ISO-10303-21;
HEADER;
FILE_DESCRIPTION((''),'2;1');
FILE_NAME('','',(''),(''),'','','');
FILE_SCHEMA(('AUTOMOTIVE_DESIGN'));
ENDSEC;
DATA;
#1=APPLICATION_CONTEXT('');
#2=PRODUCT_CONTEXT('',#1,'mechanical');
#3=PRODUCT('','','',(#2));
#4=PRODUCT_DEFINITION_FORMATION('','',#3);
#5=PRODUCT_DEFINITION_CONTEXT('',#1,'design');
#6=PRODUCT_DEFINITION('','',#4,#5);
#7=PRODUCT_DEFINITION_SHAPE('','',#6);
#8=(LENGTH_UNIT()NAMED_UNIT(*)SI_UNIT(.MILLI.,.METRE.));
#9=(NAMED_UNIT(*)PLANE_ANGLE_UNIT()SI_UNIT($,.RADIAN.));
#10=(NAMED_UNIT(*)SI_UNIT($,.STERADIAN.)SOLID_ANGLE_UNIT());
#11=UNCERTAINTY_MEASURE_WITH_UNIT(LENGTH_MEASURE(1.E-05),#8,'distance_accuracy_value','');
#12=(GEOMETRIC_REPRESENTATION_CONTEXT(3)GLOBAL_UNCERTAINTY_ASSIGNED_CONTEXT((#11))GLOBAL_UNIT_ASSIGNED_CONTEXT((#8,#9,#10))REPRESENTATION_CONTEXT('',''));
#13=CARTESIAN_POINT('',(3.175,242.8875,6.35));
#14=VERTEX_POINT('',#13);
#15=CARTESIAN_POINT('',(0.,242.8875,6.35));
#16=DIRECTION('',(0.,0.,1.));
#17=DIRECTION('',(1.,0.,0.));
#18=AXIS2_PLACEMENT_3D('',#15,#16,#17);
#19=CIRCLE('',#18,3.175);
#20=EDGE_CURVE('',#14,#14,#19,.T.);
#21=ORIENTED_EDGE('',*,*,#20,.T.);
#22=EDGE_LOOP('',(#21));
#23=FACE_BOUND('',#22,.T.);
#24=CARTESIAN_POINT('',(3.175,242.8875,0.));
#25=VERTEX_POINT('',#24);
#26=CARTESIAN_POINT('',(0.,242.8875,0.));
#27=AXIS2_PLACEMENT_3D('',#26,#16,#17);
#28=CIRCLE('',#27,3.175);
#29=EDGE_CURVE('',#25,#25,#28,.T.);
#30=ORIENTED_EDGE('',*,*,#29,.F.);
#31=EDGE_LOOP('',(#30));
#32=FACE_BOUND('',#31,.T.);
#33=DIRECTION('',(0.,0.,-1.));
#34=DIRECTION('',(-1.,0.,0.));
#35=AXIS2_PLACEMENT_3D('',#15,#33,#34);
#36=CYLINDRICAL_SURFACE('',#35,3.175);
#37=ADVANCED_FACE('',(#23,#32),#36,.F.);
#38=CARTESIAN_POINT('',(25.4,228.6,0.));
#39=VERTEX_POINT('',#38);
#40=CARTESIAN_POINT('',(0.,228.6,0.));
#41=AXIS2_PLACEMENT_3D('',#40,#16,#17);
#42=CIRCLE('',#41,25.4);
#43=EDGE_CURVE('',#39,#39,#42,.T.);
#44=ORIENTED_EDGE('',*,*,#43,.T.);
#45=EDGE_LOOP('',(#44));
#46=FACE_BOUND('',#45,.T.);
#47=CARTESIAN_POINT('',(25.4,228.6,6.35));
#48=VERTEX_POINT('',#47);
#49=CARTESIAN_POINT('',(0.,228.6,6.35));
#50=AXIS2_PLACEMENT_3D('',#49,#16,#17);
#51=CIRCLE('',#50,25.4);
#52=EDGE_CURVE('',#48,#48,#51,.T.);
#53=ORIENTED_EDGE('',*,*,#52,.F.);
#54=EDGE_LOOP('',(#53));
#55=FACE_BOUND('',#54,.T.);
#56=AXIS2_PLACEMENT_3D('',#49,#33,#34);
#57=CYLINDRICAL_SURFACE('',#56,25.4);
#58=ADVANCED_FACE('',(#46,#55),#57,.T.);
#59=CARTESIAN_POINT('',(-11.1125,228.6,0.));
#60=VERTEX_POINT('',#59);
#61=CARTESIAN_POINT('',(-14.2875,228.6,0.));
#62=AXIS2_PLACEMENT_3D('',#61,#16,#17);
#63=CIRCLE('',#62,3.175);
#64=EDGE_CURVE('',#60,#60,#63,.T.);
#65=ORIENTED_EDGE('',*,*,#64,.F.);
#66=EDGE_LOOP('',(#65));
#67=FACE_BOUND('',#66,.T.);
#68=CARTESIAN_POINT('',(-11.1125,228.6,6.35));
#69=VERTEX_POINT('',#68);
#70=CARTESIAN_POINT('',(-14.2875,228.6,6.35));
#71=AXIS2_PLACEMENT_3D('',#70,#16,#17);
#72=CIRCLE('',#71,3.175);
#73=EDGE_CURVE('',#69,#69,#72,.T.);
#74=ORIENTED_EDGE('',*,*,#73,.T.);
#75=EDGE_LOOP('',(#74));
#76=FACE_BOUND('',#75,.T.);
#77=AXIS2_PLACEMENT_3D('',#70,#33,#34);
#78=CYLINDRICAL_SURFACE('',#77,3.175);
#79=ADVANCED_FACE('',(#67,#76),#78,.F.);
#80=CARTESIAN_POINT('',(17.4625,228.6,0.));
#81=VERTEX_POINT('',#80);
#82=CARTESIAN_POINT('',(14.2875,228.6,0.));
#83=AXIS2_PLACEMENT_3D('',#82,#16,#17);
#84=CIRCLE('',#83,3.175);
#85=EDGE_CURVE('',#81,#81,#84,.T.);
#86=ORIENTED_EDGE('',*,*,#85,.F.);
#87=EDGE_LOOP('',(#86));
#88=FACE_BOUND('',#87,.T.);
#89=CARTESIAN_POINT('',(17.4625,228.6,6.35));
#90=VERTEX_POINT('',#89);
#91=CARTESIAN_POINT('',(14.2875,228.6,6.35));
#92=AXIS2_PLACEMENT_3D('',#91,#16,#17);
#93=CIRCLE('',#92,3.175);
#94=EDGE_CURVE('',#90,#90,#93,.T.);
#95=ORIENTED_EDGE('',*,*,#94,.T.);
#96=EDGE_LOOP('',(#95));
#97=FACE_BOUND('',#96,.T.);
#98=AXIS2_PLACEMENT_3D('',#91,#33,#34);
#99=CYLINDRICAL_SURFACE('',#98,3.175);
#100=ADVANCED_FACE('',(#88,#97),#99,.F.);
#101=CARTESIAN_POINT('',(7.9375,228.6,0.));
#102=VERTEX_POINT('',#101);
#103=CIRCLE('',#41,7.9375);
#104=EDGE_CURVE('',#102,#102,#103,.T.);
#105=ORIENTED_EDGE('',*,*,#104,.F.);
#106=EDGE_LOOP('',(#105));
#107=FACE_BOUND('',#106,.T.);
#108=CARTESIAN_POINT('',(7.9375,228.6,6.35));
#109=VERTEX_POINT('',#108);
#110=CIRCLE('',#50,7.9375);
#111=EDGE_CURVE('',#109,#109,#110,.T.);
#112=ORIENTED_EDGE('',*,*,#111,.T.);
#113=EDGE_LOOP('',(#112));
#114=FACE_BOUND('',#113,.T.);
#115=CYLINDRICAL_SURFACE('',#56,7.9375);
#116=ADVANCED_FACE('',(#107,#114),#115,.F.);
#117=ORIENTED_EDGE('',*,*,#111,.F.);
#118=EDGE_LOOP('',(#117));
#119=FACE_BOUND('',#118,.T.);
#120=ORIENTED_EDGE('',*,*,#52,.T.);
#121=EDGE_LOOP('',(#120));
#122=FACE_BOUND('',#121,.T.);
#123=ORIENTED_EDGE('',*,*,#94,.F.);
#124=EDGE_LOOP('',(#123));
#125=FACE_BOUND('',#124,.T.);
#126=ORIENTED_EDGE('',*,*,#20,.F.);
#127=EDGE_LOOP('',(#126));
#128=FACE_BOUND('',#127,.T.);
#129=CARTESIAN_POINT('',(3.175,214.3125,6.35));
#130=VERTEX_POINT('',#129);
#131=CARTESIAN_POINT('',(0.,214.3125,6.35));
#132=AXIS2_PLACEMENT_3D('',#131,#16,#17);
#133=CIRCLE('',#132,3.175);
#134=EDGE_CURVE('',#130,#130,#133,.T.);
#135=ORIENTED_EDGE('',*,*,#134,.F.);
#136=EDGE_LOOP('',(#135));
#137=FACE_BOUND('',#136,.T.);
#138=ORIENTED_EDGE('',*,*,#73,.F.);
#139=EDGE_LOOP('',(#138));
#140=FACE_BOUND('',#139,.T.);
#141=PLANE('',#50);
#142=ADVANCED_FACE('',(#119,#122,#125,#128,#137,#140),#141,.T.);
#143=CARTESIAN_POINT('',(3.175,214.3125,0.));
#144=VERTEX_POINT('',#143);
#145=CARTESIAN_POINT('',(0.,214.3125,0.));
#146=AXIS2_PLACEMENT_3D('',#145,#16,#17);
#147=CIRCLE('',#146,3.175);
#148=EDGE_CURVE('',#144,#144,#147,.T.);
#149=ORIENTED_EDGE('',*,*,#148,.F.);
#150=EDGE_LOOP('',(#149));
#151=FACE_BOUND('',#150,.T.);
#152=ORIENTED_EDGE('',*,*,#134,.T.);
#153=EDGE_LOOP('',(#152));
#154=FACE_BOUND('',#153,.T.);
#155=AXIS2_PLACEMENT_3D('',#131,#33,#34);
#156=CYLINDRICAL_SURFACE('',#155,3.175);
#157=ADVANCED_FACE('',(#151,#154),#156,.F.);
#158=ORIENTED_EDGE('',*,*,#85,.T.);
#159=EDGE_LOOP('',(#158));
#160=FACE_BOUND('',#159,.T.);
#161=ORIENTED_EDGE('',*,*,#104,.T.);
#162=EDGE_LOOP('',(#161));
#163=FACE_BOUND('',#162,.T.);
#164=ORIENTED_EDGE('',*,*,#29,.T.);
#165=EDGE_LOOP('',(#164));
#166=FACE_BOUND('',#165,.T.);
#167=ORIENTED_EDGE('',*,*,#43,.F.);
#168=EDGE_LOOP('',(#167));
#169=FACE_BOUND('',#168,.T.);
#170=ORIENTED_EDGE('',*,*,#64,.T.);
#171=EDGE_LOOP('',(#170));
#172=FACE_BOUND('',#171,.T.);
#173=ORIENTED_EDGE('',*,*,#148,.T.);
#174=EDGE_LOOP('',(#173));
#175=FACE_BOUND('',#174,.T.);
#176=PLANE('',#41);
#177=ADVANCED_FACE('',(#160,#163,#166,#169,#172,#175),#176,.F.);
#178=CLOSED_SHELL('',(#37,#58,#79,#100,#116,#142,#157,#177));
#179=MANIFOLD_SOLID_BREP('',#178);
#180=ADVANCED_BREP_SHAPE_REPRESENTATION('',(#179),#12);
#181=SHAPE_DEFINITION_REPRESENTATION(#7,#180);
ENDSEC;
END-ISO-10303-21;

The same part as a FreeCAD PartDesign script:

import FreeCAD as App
import Part
import Sketcher

V = App.Vector
Q = App.Units.Quantity

doc = App.newDocument("Part")
body = doc.addObject("PartDesign::Body", "Body")

sketch1 = body.newObject("Sketcher::SketchObject", "Sketch")
sketch1.AttachmentSupport = (doc.getObject("XY_Plane"), [""])
sketch1.MapMode = "FlatFace"
sketch1.addGeometry([
    Part.Circle(V(0, 228.6, 0), V(0, 0, 1), 25.4),
    Part.Circle(V(0, 214.3125, 0), V(0, 0, 1), 3.175),
    Part.Circle(V(-14.2875, 228.6, 0), V(0, 0, 1), 3.175),
    Part.Circle(V(0, 228.6, 0), V(0, 0, 1), 7.9375),
    Part.Circle(V(14.2875, 228.6, 0), V(0, 0, 1), 3.175),
    Part.Circle(V(0, 242.8875, 0), V(0, 0, 1), 3.175),
], False)
sketch1.addConstraint([
    Sketcher.Constraint("Coincident", 3, 3, 0, 3),
    Sketcher.Constraint("Equal", 1, 2),
    Sketcher.Constraint("Equal", 2, 4),
    Sketcher.Constraint("Equal", 4, 5),
    Sketcher.Constraint("Symmetric", 2, 3, 4, 3, -2),
    Sketcher.Constraint("PointOnObject", 0, 3, -2),
    Sketcher.Constraint("PointOnObject", 1, 3, -2),
    Sketcher.Constraint("PointOnObject", 5, 3, -2),
    Sketcher.Constraint("Horizontal", 0, 3, 2, 3),
    Sketcher.Constraint("Diameter", 0, Q("2 in")),
    Sketcher.Constraint("Diameter", 1, Q("0.25 in")),
    Sketcher.Constraint("Diameter", 3, Q("0.625 in")),
    Sketcher.Constraint("DistanceY", -1, 1, 0, 3, Q("9 in")),
    Sketcher.Constraint("DistanceY", -1, 1, 1, 3, Q("8.4375 in")),
    Sketcher.Constraint("DistanceX", 2, 3, -1, 1, Q("0.5625 in")),
    Sketcher.Constraint("DistanceY", -1, 1, 5, 3, Q("9.5625 in")),
])
pad1 = body.newObject("PartDesign::Pad", "Pad")
pad1.Profile = sketch1
pad1.Length = Q("0.25 in")

doc.recompute()
